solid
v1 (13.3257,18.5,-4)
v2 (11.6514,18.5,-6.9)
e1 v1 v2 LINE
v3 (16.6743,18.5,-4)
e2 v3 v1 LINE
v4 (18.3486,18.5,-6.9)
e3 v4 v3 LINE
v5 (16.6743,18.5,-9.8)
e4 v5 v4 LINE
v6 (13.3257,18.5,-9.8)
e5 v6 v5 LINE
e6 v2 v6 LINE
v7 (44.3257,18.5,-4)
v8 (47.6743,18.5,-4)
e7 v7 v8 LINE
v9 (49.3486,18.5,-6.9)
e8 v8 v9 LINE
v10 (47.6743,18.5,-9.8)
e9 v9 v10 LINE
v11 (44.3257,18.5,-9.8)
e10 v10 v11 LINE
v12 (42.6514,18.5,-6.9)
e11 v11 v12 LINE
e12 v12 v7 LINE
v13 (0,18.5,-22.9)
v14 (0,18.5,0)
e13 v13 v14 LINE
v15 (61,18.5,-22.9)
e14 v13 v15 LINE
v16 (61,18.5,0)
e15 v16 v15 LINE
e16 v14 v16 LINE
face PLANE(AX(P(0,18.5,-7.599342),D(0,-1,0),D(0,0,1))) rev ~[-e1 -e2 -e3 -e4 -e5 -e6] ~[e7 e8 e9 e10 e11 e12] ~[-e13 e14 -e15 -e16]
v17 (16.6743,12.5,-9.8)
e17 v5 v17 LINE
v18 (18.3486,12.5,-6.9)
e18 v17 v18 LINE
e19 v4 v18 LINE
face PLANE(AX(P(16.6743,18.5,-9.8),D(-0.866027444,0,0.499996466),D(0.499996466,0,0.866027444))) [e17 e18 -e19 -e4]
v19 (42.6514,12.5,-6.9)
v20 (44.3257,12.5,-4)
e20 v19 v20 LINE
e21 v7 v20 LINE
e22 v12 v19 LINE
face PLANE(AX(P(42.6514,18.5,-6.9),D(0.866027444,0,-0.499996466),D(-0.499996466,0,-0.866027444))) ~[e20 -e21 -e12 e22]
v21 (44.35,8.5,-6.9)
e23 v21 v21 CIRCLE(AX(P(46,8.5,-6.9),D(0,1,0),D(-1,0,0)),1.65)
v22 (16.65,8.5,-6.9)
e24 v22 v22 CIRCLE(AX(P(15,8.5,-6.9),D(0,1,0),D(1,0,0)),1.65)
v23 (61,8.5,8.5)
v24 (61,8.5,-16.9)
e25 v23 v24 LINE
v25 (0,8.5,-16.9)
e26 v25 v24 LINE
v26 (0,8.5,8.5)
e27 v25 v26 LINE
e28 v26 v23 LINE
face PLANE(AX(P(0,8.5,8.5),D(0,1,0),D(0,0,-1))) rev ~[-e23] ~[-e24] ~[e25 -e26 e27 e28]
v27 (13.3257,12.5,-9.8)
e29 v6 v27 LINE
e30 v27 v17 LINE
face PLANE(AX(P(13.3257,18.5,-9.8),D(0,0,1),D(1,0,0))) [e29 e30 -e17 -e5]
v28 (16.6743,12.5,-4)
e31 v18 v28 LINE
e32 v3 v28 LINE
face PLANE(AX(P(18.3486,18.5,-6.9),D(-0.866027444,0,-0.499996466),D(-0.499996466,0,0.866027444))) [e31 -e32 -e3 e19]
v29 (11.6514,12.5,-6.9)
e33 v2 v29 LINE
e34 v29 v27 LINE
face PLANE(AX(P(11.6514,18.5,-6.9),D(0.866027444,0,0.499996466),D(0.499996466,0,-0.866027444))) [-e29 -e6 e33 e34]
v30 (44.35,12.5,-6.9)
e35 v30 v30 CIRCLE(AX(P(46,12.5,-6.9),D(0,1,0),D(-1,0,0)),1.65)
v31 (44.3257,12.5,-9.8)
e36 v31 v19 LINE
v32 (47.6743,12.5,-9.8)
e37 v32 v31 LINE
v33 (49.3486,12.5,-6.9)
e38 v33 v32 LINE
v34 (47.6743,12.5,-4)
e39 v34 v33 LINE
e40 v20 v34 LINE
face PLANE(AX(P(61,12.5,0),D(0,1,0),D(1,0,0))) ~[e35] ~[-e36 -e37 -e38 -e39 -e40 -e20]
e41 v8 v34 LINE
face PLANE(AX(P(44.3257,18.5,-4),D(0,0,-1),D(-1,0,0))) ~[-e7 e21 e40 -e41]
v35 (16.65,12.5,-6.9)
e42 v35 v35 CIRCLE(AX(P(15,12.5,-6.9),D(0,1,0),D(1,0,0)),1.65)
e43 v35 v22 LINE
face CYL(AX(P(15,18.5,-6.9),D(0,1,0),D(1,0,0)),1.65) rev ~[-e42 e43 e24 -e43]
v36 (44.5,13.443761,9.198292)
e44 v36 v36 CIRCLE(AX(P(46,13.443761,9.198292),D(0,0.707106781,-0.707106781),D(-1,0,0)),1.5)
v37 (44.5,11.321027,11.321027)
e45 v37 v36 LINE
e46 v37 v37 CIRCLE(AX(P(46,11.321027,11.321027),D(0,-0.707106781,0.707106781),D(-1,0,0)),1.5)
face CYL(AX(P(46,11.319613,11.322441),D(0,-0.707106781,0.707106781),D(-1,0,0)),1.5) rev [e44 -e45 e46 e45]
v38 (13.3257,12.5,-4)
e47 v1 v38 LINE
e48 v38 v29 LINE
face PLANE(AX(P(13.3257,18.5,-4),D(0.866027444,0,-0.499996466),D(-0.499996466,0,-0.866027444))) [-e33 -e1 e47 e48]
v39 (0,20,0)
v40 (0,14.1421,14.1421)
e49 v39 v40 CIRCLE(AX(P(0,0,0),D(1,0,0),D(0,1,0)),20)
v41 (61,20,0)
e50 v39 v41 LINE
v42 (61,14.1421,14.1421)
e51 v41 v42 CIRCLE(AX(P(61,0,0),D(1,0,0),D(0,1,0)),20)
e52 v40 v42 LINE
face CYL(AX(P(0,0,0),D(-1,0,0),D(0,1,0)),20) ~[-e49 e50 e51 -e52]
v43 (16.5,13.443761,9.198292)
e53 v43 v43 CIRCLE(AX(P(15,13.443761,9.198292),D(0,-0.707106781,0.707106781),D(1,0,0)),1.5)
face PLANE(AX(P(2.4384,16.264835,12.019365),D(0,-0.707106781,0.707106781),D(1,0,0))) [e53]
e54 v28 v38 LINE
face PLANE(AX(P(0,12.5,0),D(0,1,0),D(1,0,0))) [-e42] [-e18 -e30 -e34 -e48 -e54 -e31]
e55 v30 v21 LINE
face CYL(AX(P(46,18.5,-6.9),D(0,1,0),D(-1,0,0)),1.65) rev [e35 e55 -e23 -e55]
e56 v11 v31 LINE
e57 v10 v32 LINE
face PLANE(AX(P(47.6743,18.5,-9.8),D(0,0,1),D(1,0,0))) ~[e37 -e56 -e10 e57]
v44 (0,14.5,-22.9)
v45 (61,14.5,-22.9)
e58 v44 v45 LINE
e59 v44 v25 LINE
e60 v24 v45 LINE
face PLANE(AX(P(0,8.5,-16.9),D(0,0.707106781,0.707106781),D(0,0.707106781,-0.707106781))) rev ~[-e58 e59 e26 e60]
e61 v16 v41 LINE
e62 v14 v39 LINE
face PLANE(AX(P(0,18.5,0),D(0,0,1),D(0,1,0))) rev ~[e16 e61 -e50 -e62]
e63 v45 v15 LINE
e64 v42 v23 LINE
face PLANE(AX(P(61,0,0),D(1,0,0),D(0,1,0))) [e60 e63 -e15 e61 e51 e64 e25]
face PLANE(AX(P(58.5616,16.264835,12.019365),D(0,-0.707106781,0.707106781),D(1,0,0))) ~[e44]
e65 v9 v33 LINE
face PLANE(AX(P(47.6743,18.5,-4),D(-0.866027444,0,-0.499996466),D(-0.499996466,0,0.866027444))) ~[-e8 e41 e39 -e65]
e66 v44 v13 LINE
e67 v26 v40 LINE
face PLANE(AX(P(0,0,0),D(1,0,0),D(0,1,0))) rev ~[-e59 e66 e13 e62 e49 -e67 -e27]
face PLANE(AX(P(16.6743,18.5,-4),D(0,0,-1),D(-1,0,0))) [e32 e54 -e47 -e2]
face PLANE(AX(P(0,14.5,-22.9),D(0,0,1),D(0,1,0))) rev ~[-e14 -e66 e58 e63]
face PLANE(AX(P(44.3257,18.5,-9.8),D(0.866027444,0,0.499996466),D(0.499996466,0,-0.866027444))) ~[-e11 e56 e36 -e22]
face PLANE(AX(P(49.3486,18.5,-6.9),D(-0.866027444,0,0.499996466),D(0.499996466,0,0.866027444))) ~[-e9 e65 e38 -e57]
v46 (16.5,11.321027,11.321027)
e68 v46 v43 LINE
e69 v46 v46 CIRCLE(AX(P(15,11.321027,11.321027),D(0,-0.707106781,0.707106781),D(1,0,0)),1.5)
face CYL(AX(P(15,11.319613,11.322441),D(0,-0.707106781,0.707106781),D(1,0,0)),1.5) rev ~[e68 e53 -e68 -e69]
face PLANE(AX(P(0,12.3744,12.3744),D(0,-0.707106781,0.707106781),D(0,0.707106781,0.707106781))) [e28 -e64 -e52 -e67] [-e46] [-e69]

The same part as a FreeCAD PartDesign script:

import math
import FreeCAD as App
import Part
import Sketcher
Q = App.Units.Quantity

doc = App.newDocument("Part")
params = doc.addObject("Spreadsheet::Sheet", "Params")
for row, (alias, value) in enumerate([
    ("sketch1_radius", "20 mm"),
    ("sketch1_width", "4 mm"),
    ("sketch1_width2", "1.5 mm"),
    ("sketch1_height", "25.4 mm"),
    ("sketch1_height2", "22.9 mm"),
    ("pad1_length", "61 mm"),
    ("pocket1_length", "6 mm"),
    ("sketch3_diameter", "3.3 mm"),
    ("sketch4_diameter", "3 mm"),
    ("pocket3_length", "3 mm"),
], start=1):
    params.set(f"A{row}", alias)
    params.set(f"B{row}", "=" + value)
    params.setAlias(f"B{row}", alias)

body = doc.addObject("PartDesign::Body", "Body")

# Sketch on YZ plane
sketch1 = doc.addObject("Sketcher::SketchObject", "Sketch")
body.addObject(sketch1)
sketch1.AttachmentSupport = (doc.YZ_Plane, [""])
sketch1.MapMode = "FlatFace"
sketch1.addGeometry([
    Part.LineSegment(App.Vector(18.5, 0, 0), App.Vector(20, 0, 0)),  # 0
    Part.ArcOfCircle(Part.Circle(App.Vector(0, 0, 0), App.Vector(0, 0, 1), 20), math.radians(0), math.radians(45)),  # 1
    Part.LineSegment(App.Vector(14.1421, 14.1421, 0), App.Vector(8.5, 8.5, 0)),  # 2
    Part.LineSegment(App.Vector(8.5, 8.5, 0), App.Vector(8.5, -16.9, 0)),  # 3
    Part.LineSegment(App.Vector(8.5, -16.9, 0), App.Vector(14.5, -22.9, 0)),  # 4
    Part.LineSegment(App.Vector(14.5, -22.9, 0), App.Vector(18.5, -22.9, 0)),  # 5
    Part.LineSegment(App.Vector(18.5, -22.9, 0), App.Vector(18.5, 0, 0)),  # 6
], False)
sketch1.addConstraint([
    Sketcher.Constraint("Coincident", 0, 2, 1, 1),
    Sketcher.Constraint("Coincident", 1, 2, 2, 1),
    Sketcher.Constraint("Coincident", 2, 2, 3, 1),
    Sketcher.Constraint("Coincident", 3, 2, 4, 1),
    Sketcher.Constraint("Coincident", 4, 2, 5, 1),
    Sketcher.Constraint("Coincident", 5, 2, 6, 1),
    Sketcher.Constraint("Coincident", 6, 2, 0, 1),
    Sketcher.Constraint("Horizontal", 0),
    Sketcher.Constraint("Vertical", 3),
    Sketcher.Constraint("Horizontal", 5),
    Sketcher.Constraint("Vertical", 6),
    Sketcher.Constraint("Coincident", 1, 3, -1, 1),
    Sketcher.Constraint("PointOnObject", 0, 2, -1),
    Sketcher.Constraint("Perpendicular", 2, 4),
    Sketcher.Constraint("Radius", 1, 20.0),
    Sketcher.Constraint("DistanceX", 5, 1, 5, 2, 4.0),
    Sketcher.Constraint("Angle", 4, Q("-45 deg")),
    Sketcher.Constraint("DistanceX", 0, 1, 0, 2, 1.5),
    Sketcher.Constraint("DistanceY", 3, 2, 3, 1, 25.4),
    Sketcher.Constraint("DistanceX", 3, 2, 5, 2, 10.0),
    Sketcher.Constraint("DistanceY", 6, 1, 6, 2, 22.9),
])
sketch1.setExpression("Constraints[14]", "Params.sketch1_radius")
sketch1.setExpression("Constraints[15]", "Params.sketch1_width")
sketch1.setExpression("Constraints[17]", "Params.sketch1_width2")
sketch1.setExpression("Constraints[18]", "Params.sketch1_height")
sketch1.setExpression("Constraints[20]", "Params.sketch1_height2")
pad1 = doc.addObject("PartDesign::Pad", "Pad")
body.addObject(pad1)
pad1.Profile = sketch1
pad1.setExpression("Length", "Params.pad1_length")

# Sketch on XZ plane
sketch2 = doc.addObject("Sketcher::SketchObject", "Sketch001")
body.addObject(sketch2)
sketch2.AttachmentSupport = (doc.XZ_Plane, [""])
sketch2.MapMode = "FlatFace"
sketch2.AttachmentOffset = App.Placement(App.Vector(0, 0, -18.5), App.Rotation())
sketch2.addGeometry([
    Part.LineSegment(App.Vector(11.6514, -6.9, 0), App.Vector(13.3257, -4, 0)),  # 0
    Part.LineSegment(App.Vector(13.3257, -4, 0), App.Vector(16.6743, -4, 0)),  # 1
    Part.LineSegment(App.Vector(16.6743, -4, 0), App.Vector(18.3486, -6.9, 0)),  # 2
    Part.LineSegment(App.Vector(18.3486, -6.9, 0), App.Vector(16.6743, -9.8, 0)),  # 3
    Part.LineSegment(App.Vector(16.6743, -9.8, 0), App.Vector(13.3257, -9.8, 0)),  # 4
    Part.LineSegment(App.Vector(13.3257, -9.8, 0), App.Vector(11.6514, -6.9, 0)),  # 5
], False)
sketch2.addConstraint([
    Sketcher.Constraint("Coincident", 0, 2, 1, 1),
    Sketcher.Constraint("Coincident", 1, 2, 2, 1),
    Sketcher.Constraint("Coincident", 2, 2, 3, 1),
    Sketcher.Constraint("Coincident", 3, 2, 4, 1),
    Sketcher.Constraint("Coincident", 4, 2, 5, 1),
    Sketcher.Constraint("Coincident", 5, 2, 0, 1),
    Sketcher.Constraint("Horizontal", 1),
    Sketcher.Constraint("Horizontal", 4),
    Sketcher.Constraint("Parallel", 0, 3),
    Sketcher.Constraint("Parallel", 2, 5),
    Sketcher.Constraint("Horizontal", 2, 2, 5, 2),
    Sketcher.Constraint("Vertical", 1, 2, 3, 2),
    Sketcher.Constraint("Vertical", 0, 2, 4, 2),
    Sketcher.Constraint("DistanceY", 3, 2, 1, 2, 5.8),
    Sketcher.Constraint("Angle", 0, Q("60.0002 deg")),
    Sketcher.Constraint("DistanceY", 0, 2, -1, 1, 4.0),
    Sketcher.Constraint("DistanceX", 1, 1, 1, 2, 3.3486),
    Sketcher.Constraint("DistanceX", -1, 1, 0, 2, 13.3257),
])
pocket1 = doc.addObject("PartDesign::Pocket", "Pocket")
body.addObject(pocket1)
pocket1.Profile = sketch2
pocket1.setExpression("Length", "Params.pocket1_length")
pocket1.Reversed = True

# Sketch on XZ plane
sketch3 = doc.addObject("Sketcher::SketchObject", "Sketch002")
body.addObject(sketch3)
sketch3.AttachmentSupport = (doc.XZ_Plane, [""])
sketch3.MapMode = "FlatFace"
sketch3.AttachmentOffset = App.Placement(App.Vector(0, 0, -18.5), App.Rotation())
sketch3.addGeometry(Part.Circle(App.Vector(15, -6.9, 0), App.Vector(0, 0, 1), 1.65), False)
sketch3.addConstraint([
    Sketcher.Constraint("Diameter", 0, 3.3),
    Sketcher.Constraint("DistanceX", -1, 1, 0, 3, 15.0),
    Sketcher.Constraint("DistanceY", 0, 3, -1, 1, 6.9),
])
sketch3.setExpression("Constraints[0]", "Params.sketch3_diameter")
pocket2 = doc.addObject("PartDesign::Pocket", "Pocket001")
body.addObject(pocket2)
pocket2.Profile = sketch3
pocket2.Type = "ThroughAll"
pocket2.Reversed = True

# Sketch on an angled plane
sketch4 = doc.addObject("Sketcher::SketchObject", "Sketch003")
body.addObject(sketch4)
sketch4.Placement = App.Placement(App.Vector(2.4384, 14.1421, 14.1421), App.Rotation(App.Vector(1, 0, 0), App.Vector(0, 0.707106781, 0.707106781), App.Vector(0, -0.707106781, 0.707106781), "ZXY"))
sketch4.addGeometry(Part.Circle(App.Vector(12.5616, -3.9896, 0), App.Vector(0, 0, 1), 1.5), False)
sketch4.addConstraint([
    Sketcher.Constraint("Diameter", 0, 3.0),
    Sketcher.Constraint("DistanceX", -1, 1, 0, 3, 12.5616),
    Sketcher.Constraint("DistanceY", 0, 3, -1, 1, 3.9896),
])
sketch4.setExpression("Constraints[0]", "Params.sketch4_diameter")
pocket3 = doc.addObject("PartDesign::Pocket", "Pocket002")
body.addObject(pocket3)
pocket3.Profile = sketch4
pocket3.setExpression("Length", "Params.pocket3_length")
doc.recompute()

datumplane = doc.addObject("PartDesign::Plane", "DatumPlane")
body.addObject(datumplane)
datumplane.AttachmentSupport = (doc.YZ_Plane, [""])
datumplane.MapMode = "FlatFace"
datumplane.AttachmentOffset = App.Placement(App.Vector(0, 0, 30.5), App.Rotation())
mirrored = doc.addObject("PartDesign::Mirrored", "Mirrored")
body.addObject(mirrored)
mirrored.Originals = [pocket3, pocket2, pocket1]
mirrored.MirrorPlane = (datumplane, [""])
body.Tip = mirrored

doc.recompute()
